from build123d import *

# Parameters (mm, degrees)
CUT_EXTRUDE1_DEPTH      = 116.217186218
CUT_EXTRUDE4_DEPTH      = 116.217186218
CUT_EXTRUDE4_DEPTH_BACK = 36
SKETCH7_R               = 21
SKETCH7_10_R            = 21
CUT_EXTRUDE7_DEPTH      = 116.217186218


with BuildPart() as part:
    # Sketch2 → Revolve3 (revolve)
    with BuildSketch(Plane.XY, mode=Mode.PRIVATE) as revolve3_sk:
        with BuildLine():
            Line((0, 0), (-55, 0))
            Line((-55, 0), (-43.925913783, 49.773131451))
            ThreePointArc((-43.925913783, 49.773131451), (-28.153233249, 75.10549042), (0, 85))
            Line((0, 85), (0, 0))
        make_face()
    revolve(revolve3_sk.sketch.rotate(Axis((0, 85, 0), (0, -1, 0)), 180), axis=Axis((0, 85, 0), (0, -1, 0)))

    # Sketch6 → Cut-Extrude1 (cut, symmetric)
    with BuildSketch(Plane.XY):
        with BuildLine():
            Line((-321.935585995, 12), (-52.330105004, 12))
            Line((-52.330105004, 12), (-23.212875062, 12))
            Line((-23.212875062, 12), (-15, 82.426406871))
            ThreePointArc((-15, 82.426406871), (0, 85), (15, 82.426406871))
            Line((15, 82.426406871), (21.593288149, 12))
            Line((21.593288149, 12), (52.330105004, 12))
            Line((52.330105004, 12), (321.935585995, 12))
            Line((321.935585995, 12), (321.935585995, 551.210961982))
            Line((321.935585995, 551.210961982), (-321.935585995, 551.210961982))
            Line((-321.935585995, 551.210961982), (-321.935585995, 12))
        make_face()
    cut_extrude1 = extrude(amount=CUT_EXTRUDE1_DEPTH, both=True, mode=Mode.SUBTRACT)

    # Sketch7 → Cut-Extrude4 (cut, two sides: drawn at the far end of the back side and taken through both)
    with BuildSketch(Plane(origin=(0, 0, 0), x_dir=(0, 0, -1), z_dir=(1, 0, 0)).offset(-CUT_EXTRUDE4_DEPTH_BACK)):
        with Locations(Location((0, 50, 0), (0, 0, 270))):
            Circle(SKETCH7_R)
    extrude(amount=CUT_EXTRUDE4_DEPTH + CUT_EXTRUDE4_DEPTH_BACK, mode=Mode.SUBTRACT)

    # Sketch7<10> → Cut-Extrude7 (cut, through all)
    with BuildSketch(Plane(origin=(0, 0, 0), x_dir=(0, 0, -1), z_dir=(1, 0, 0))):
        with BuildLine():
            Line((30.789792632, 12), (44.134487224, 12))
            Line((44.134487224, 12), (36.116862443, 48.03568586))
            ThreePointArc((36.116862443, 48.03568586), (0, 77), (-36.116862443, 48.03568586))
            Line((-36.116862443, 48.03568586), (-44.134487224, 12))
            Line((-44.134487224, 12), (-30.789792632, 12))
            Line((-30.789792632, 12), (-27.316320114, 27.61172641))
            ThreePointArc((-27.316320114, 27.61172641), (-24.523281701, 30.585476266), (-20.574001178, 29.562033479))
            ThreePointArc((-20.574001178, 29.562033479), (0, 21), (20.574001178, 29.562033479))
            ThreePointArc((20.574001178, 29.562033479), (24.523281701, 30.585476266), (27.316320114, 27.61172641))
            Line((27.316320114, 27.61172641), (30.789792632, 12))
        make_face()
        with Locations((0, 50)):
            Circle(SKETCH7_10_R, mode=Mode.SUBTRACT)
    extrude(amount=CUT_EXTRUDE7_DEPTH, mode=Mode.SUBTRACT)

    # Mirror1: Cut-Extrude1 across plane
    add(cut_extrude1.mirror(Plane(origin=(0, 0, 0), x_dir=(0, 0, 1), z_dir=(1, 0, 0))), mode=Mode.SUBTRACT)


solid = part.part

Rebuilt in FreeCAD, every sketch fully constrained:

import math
import FreeCAD as App
import Part
import Sketcher

V = App.Vector
Q = App.Units.Quantity

doc = App.newDocument("Part")
body = doc.addObject("PartDesign::Body", "Body")

# Sketch on XY plane
sketch1 = doc.addObject("Sketcher::SketchObject", "Sketch")
body.addObject(sketch1)
sketch1.AttachmentSupport = (doc.XY_Plane, [""])
sketch1.MapMode = "FlatFace"
sketch1.addGeometry(Part.LineSegment(V(-55, 0, 0), V(0, 0, 0)), False)
sketch1.addGeometry(Part.LineSegment(V(0, 0, 0), V(0, 85, 0)), False)
sketch1.addGeometry(Part.ArcOfCircle(Part.Circle(V(0, 40, 0), V(0, 0, 1), 45), math.radians(90), math.radians(167.456504)), False)
sketch1.addGeometry(Part.LineSegment(V(-43.925914, 49.773131, 0), V(-55, 0, 0)), False)
sketch1.addConstraint(Sketcher.Constraint("Coincident", 0, 2, 1, 1))
sketch1.addConstraint(Sketcher.Constraint("Coincident", 1, 2, 2, 1))
sketch1.addConstraint(Sketcher.Constraint("Tangent", 2, 2, 3, 1))
sketch1.addConstraint(Sketcher.Constraint("Coincident", 3, 2, 0, 1))
sketch1.addConstraint(Sketcher.Constraint("Horizontal", 0))
sketch1.addConstraint(Sketcher.Constraint("Vertical", 1))
sketch1.addConstraint(Sketcher.Constraint("Coincident", 0, 2, -1, 1))
sketch1.addConstraint(Sketcher.Constraint("PointOnObject", 2, 3, -2))
sketch1.addConstraint(Sketcher.Constraint("Radius", 2, Q("45 mm")))
sketch1.addConstraint(Sketcher.Constraint("DistanceX", 0, 1, 0, 2, Q("55 mm")))
sketch1.addConstraint(Sketcher.Constraint("DistanceY", 1, 1, 1, 2, Q("85 mm")))
revolution = doc.addObject("PartDesign::Revolution", "Revolution")
body.addObject(revolution)
revolution.Profile = sketch1
revolution.ReferenceAxis = (sketch1, ["V_Axis"])
revolution.Angle = 360

# Sketch on XY plane
sketch2 = doc.addObject("Sketcher::SketchObject", "Sketch001")
body.addObject(sketch2)
sketch2.AttachmentSupport = (doc.XY_Plane, [""])
sketch2.MapMode = "FlatFace"
sketch2.addGeometry(Part.LineSegment(V(-322, 12, 0), V(-23, 12, 0)), False)
sketch2.addGeometry(Part.LineSegment(V(-23, 12, 0), V(-15, 82, 0)), False)
sketch2.addGeometry(Part.ArcOfCircle(Part.Circle(V(0, 40, 0), V(0, 0, 1), 45), math.radians(71), math.radians(109)), False)
sketch2.addGeometry(Part.LineSegment(V(15, 82, 0), V(22, 12, 0)), False)
sketch2.addGeometry(Part.LineSegment(V(22, 12, 0), V(322, 12, 0)), False)
sketch2.addGeometry(Part.LineSegment(V(322, 12, 0), V(322, 551, 0)), False)
sketch2.addGeometry(Part.LineSegment(V(322, 551, 0), V(-322, 551, 0)), False)
sketch2.addGeometry(Part.LineSegment(V(-322, 551, 0), V(-322, 12, 0)), False)
sketch2.addConstraint(Sketcher.Constraint("Coincident", 0, 2, 1, 1))
sketch2.addConstraint(Sketcher.Constraint("Coincident", 1, 2, 2, 2))
sketch2.addConstraint(Sketcher.Constraint("Coincident", 2, 1, 3, 1))
sketch2.addConstraint(Sketcher.Constraint("Coincident", 3, 2, 4, 1))
sketch2.addConstraint(Sketcher.Constraint("Coincident", 4, 2, 5, 1))
sketch2.addConstraint(Sketcher.Constraint("Coincident", 5, 2, 6, 1))
sketch2.addConstraint(Sketcher.Constraint("Coincident", 6, 2, 7, 1))
sketch2.addConstraint(Sketcher.Constraint("Coincident", 7, 2, 0, 1))
sketch2.addConstraint(Sketcher.Constraint("Horizontal", 0))
sketch2.addConstraint(Sketcher.Constraint("Horizontal", 4))
sketch2.addConstraint(Sketcher.Constraint("Vertical", 5))
sketch2.addConstraint(Sketcher.Constraint("Horizontal", 6))
sketch2.addConstraint(Sketcher.Constraint("Vertical", 7))
sketch2.addConstraint(Sketcher.Constraint("Symmetric", 1, 2, 2, 1, -2))
sketch2.addConstraint(Sketcher.Constraint("Symmetric", 4, 2, 7, 2, -2))
sketch2.addConstraint(Sketcher.Constraint("Radius", 2, Q("45 mm")))
sketch2.addConstraint(Sketcher.Constraint("DistanceY", -1, 1, 2, 3, Q("40 mm")))
sketch2.addConstraint(Sketcher.Constraint("DistanceY", -1, 1, 0, 2, Q("12 mm")))
sketch2.addConstraint(Sketcher.Constraint("DistanceX", 1, 2, -1, 1, Q("15 mm")))
sketch2.addConstraint(Sketcher.Constraint("DistanceX", 0, 1, 0, 2, Q("298.722711 mm")))
sketch2.addConstraint(Sketcher.Constraint("DistanceX", 6, 2, 6, 1, Q("643.871172 mm")))
sketch2.addConstraint(Sketcher.Constraint("DistanceY", 5, 1, 5, 2, Q("539.210962 mm")))
sketch2.addConstraint(Sketcher.Constraint("DistanceX", 4, 1, 4, 2, Q("300.342298 mm")))
pocket1 = doc.addObject("PartDesign::Pocket", "Pocket")
body.addObject(pocket1)
pocket1.Profile = sketch2
pocket1.Length = 232.434372
pocket1.Midplane = True

# Sketch on YZ plane
sketch3 = doc.addObject("Sketcher::SketchObject", "Sketch002")
body.addObject(sketch3)
sketch3.AttachmentSupport = (doc.YZ_Plane, [""])
sketch3.MapMode = "FlatFace"
sketch3.addGeometry(Part.Circle(V(50, 0, 0), V(0, 0, 1), 21), False)
sketch3.addConstraint(Sketcher.Constraint("PointOnObject", 0, 3, -1))
sketch3.addConstraint(Sketcher.Constraint("Diameter", 0, Q("42 mm")))
sketch3.addConstraint(Sketcher.Constraint("DistanceX", -1, 1, 0, 3, Q("50 mm")))
pocket2 = doc.addObject("PartDesign::Pocket", "Pocket001")
body.addObject(pocket2)
pocket2.Profile = sketch3
pocket2.Type = "ThroughAll"
pocket2.Midplane = True

# Sketch on YZ plane
sketch4 = doc.addObject("Sketcher::SketchObject", "Sketch003")
body.addObject(sketch4)
sketch4.AttachmentSupport = (doc.YZ_Plane, [""])
sketch4.MapMode = "FlatFace"
sketch4.addGeometry(Part.LineSegment(V(12, -30.8, 0), V(12, -44.1, 0)), False)
sketch4.addGeometry(Part.LineSegment(V(12, -44.1, 0), V(48, -36.1, 0)), False)
sketch4.addGeometry(Part.ArcOfCircle(Part.Circle(V(40, 0, 0), V(0, 0, 1), 37), math.radians(-77), math.radians(77)), False)
sketch4.addGeometry(Part.LineSegment(V(48, 36.1, 0), V(12, 44.1, 0)), False)
sketch4.addGeometry(Part.LineSegment(V(12, 44.1, 0), V(12, 30.8, 0)), False)
sketch4.addGeometry(Part.LineSegment(V(12, 30.8, 0), V(27.6, 27.3, 0)), False)
sketch4.addGeometry(Part.ArcOfCircle(Part.Circle(V(26.7, 23.4, 0), V(0, 0, 1), 4), math.radians(-45), math.radians(77)), False)
sketch4.addGeometry(Part.ArcOfCircle(Part.Circle(V(50, 0, 0), V(0, 0, 1), 29), math.radians(135), math.radians(225)), False)
sketch4.addGeometry(Part.ArcOfCircle(Part.Circle(V(26.7, -23.4, 0), V(0, 0, 1), 4), math.radians(-77), math.radians(45)), False)
sketch4.addGeometry(Part.LineSegment(V(27.6, -27.3, 0), V(12, -30.8, 0)), False)
sketch4.addGeometry(Part.Circle(V(50, 0, 0), V(0, 0, 1), 21), False)
sketch4.addConstraint(Sketcher.Constraint("Coincident", 0, 2, 1, 1))
sketch4.addConstraint(Sketcher.Constraint("Tangent", 1, 2, 2, 1))
sketch4.addConstraint(Sketcher.Constraint("Tangent", 2, 2, 3, 1))
sketch4.addConstraint(Sketcher.Constraint("Coincident", 3, 2, 4, 1))
sketch4.addConstraint(Sketcher.Constraint("Coincident", 4, 2, 5, 1))
sketch4.addConstraint(Sketcher.Constraint("Tangent", 5, 2, 6, 2))
sketch4.addConstraint(Sketcher.Constraint("Tangent", 6, 1, 7, 1))
sketch4.addConstraint(Sketcher.Constraint("Tangent", 7, 2, 8, 2))
sketch4.addConstraint(Sketcher.Constraint("Tangent", 8, 1, 9, 1))
sketch4.addConstraint(Sketcher.Constraint("Coincident", 9, 2, 0, 1))
sketch4.addConstraint(Sketcher.Constraint("Vertical", 0))
sketch4.addConstraint(Sketcher.Constraint("Vertical", 4))
sketch4.addConstraint(Sketcher.Constraint("Coincident", 10, 3, 7, 3))
sketch4.addConstraint(Sketcher.Constraint("Equal", 6, 8))
sketch4.addConstraint(Sketcher.Constraint("Symmetric", 6, 3, 8, 3, -1))
sketch4.addConstraint(Sketcher.Constraint("Symmetric", 1, 2, 2, 2, -1))
sketch4.addConstraint(Sketcher.Constraint("Symmetric", 4, 2, 9, 2, -1))
sketch4.addConstraint(Sketcher.Constraint("Parallel", 3, 5))
sketch4.addConstraint(Sketcher.Constraint("Diameter", 10, Q("42 mm")))
sketch4.addConstraint(Sketcher.Constraint("Radius", 2, Q("37 mm")))
sketch4.addConstraint(Sketcher.Constraint("Radius", 6, Q("4 mm")))
sketch4.addConstraint(Sketcher.Constraint("Radius", 7, Q("29 mm")))
sketch4.addConstraint(Sketcher.Constraint("DistanceX", -1, 1, 2, 3, Q("40 mm")))
sketch4.addConstraint(Sketcher.Constraint("DistanceX", -1, 1, 7, 3, Q("50 mm")))
sketch4.addConstraint(Sketcher.Constraint("DistanceX", -1, 1, 0, 2, Q("12 mm")))
sketch4.addConstraint(Sketcher.Constraint("DistanceY", -1, 1, 6, 1, Q("20.574001 mm")))
sketch4.addConstraint(Sketcher.Constraint("DistanceY", 6, 3, 4, 2, Q("7.377998 mm")))
pocket3 = doc.addObject("PartDesign::Pocket", "Pocket002")
body.addObject(pocket3)
pocket3.Profile = sketch4
pocket3.Type = "ThroughAll"
pocket3.Reversed = True
doc.recompute()

mirrored = doc.addObject("PartDesign::Mirrored", "Mirrored")
body.addObject(mirrored)
mirrored.Originals = [pocket1]
mirrored.MirrorPlane = (doc.YZ_Plane, [""])
body.Tip = mirrored

doc.recompute()
